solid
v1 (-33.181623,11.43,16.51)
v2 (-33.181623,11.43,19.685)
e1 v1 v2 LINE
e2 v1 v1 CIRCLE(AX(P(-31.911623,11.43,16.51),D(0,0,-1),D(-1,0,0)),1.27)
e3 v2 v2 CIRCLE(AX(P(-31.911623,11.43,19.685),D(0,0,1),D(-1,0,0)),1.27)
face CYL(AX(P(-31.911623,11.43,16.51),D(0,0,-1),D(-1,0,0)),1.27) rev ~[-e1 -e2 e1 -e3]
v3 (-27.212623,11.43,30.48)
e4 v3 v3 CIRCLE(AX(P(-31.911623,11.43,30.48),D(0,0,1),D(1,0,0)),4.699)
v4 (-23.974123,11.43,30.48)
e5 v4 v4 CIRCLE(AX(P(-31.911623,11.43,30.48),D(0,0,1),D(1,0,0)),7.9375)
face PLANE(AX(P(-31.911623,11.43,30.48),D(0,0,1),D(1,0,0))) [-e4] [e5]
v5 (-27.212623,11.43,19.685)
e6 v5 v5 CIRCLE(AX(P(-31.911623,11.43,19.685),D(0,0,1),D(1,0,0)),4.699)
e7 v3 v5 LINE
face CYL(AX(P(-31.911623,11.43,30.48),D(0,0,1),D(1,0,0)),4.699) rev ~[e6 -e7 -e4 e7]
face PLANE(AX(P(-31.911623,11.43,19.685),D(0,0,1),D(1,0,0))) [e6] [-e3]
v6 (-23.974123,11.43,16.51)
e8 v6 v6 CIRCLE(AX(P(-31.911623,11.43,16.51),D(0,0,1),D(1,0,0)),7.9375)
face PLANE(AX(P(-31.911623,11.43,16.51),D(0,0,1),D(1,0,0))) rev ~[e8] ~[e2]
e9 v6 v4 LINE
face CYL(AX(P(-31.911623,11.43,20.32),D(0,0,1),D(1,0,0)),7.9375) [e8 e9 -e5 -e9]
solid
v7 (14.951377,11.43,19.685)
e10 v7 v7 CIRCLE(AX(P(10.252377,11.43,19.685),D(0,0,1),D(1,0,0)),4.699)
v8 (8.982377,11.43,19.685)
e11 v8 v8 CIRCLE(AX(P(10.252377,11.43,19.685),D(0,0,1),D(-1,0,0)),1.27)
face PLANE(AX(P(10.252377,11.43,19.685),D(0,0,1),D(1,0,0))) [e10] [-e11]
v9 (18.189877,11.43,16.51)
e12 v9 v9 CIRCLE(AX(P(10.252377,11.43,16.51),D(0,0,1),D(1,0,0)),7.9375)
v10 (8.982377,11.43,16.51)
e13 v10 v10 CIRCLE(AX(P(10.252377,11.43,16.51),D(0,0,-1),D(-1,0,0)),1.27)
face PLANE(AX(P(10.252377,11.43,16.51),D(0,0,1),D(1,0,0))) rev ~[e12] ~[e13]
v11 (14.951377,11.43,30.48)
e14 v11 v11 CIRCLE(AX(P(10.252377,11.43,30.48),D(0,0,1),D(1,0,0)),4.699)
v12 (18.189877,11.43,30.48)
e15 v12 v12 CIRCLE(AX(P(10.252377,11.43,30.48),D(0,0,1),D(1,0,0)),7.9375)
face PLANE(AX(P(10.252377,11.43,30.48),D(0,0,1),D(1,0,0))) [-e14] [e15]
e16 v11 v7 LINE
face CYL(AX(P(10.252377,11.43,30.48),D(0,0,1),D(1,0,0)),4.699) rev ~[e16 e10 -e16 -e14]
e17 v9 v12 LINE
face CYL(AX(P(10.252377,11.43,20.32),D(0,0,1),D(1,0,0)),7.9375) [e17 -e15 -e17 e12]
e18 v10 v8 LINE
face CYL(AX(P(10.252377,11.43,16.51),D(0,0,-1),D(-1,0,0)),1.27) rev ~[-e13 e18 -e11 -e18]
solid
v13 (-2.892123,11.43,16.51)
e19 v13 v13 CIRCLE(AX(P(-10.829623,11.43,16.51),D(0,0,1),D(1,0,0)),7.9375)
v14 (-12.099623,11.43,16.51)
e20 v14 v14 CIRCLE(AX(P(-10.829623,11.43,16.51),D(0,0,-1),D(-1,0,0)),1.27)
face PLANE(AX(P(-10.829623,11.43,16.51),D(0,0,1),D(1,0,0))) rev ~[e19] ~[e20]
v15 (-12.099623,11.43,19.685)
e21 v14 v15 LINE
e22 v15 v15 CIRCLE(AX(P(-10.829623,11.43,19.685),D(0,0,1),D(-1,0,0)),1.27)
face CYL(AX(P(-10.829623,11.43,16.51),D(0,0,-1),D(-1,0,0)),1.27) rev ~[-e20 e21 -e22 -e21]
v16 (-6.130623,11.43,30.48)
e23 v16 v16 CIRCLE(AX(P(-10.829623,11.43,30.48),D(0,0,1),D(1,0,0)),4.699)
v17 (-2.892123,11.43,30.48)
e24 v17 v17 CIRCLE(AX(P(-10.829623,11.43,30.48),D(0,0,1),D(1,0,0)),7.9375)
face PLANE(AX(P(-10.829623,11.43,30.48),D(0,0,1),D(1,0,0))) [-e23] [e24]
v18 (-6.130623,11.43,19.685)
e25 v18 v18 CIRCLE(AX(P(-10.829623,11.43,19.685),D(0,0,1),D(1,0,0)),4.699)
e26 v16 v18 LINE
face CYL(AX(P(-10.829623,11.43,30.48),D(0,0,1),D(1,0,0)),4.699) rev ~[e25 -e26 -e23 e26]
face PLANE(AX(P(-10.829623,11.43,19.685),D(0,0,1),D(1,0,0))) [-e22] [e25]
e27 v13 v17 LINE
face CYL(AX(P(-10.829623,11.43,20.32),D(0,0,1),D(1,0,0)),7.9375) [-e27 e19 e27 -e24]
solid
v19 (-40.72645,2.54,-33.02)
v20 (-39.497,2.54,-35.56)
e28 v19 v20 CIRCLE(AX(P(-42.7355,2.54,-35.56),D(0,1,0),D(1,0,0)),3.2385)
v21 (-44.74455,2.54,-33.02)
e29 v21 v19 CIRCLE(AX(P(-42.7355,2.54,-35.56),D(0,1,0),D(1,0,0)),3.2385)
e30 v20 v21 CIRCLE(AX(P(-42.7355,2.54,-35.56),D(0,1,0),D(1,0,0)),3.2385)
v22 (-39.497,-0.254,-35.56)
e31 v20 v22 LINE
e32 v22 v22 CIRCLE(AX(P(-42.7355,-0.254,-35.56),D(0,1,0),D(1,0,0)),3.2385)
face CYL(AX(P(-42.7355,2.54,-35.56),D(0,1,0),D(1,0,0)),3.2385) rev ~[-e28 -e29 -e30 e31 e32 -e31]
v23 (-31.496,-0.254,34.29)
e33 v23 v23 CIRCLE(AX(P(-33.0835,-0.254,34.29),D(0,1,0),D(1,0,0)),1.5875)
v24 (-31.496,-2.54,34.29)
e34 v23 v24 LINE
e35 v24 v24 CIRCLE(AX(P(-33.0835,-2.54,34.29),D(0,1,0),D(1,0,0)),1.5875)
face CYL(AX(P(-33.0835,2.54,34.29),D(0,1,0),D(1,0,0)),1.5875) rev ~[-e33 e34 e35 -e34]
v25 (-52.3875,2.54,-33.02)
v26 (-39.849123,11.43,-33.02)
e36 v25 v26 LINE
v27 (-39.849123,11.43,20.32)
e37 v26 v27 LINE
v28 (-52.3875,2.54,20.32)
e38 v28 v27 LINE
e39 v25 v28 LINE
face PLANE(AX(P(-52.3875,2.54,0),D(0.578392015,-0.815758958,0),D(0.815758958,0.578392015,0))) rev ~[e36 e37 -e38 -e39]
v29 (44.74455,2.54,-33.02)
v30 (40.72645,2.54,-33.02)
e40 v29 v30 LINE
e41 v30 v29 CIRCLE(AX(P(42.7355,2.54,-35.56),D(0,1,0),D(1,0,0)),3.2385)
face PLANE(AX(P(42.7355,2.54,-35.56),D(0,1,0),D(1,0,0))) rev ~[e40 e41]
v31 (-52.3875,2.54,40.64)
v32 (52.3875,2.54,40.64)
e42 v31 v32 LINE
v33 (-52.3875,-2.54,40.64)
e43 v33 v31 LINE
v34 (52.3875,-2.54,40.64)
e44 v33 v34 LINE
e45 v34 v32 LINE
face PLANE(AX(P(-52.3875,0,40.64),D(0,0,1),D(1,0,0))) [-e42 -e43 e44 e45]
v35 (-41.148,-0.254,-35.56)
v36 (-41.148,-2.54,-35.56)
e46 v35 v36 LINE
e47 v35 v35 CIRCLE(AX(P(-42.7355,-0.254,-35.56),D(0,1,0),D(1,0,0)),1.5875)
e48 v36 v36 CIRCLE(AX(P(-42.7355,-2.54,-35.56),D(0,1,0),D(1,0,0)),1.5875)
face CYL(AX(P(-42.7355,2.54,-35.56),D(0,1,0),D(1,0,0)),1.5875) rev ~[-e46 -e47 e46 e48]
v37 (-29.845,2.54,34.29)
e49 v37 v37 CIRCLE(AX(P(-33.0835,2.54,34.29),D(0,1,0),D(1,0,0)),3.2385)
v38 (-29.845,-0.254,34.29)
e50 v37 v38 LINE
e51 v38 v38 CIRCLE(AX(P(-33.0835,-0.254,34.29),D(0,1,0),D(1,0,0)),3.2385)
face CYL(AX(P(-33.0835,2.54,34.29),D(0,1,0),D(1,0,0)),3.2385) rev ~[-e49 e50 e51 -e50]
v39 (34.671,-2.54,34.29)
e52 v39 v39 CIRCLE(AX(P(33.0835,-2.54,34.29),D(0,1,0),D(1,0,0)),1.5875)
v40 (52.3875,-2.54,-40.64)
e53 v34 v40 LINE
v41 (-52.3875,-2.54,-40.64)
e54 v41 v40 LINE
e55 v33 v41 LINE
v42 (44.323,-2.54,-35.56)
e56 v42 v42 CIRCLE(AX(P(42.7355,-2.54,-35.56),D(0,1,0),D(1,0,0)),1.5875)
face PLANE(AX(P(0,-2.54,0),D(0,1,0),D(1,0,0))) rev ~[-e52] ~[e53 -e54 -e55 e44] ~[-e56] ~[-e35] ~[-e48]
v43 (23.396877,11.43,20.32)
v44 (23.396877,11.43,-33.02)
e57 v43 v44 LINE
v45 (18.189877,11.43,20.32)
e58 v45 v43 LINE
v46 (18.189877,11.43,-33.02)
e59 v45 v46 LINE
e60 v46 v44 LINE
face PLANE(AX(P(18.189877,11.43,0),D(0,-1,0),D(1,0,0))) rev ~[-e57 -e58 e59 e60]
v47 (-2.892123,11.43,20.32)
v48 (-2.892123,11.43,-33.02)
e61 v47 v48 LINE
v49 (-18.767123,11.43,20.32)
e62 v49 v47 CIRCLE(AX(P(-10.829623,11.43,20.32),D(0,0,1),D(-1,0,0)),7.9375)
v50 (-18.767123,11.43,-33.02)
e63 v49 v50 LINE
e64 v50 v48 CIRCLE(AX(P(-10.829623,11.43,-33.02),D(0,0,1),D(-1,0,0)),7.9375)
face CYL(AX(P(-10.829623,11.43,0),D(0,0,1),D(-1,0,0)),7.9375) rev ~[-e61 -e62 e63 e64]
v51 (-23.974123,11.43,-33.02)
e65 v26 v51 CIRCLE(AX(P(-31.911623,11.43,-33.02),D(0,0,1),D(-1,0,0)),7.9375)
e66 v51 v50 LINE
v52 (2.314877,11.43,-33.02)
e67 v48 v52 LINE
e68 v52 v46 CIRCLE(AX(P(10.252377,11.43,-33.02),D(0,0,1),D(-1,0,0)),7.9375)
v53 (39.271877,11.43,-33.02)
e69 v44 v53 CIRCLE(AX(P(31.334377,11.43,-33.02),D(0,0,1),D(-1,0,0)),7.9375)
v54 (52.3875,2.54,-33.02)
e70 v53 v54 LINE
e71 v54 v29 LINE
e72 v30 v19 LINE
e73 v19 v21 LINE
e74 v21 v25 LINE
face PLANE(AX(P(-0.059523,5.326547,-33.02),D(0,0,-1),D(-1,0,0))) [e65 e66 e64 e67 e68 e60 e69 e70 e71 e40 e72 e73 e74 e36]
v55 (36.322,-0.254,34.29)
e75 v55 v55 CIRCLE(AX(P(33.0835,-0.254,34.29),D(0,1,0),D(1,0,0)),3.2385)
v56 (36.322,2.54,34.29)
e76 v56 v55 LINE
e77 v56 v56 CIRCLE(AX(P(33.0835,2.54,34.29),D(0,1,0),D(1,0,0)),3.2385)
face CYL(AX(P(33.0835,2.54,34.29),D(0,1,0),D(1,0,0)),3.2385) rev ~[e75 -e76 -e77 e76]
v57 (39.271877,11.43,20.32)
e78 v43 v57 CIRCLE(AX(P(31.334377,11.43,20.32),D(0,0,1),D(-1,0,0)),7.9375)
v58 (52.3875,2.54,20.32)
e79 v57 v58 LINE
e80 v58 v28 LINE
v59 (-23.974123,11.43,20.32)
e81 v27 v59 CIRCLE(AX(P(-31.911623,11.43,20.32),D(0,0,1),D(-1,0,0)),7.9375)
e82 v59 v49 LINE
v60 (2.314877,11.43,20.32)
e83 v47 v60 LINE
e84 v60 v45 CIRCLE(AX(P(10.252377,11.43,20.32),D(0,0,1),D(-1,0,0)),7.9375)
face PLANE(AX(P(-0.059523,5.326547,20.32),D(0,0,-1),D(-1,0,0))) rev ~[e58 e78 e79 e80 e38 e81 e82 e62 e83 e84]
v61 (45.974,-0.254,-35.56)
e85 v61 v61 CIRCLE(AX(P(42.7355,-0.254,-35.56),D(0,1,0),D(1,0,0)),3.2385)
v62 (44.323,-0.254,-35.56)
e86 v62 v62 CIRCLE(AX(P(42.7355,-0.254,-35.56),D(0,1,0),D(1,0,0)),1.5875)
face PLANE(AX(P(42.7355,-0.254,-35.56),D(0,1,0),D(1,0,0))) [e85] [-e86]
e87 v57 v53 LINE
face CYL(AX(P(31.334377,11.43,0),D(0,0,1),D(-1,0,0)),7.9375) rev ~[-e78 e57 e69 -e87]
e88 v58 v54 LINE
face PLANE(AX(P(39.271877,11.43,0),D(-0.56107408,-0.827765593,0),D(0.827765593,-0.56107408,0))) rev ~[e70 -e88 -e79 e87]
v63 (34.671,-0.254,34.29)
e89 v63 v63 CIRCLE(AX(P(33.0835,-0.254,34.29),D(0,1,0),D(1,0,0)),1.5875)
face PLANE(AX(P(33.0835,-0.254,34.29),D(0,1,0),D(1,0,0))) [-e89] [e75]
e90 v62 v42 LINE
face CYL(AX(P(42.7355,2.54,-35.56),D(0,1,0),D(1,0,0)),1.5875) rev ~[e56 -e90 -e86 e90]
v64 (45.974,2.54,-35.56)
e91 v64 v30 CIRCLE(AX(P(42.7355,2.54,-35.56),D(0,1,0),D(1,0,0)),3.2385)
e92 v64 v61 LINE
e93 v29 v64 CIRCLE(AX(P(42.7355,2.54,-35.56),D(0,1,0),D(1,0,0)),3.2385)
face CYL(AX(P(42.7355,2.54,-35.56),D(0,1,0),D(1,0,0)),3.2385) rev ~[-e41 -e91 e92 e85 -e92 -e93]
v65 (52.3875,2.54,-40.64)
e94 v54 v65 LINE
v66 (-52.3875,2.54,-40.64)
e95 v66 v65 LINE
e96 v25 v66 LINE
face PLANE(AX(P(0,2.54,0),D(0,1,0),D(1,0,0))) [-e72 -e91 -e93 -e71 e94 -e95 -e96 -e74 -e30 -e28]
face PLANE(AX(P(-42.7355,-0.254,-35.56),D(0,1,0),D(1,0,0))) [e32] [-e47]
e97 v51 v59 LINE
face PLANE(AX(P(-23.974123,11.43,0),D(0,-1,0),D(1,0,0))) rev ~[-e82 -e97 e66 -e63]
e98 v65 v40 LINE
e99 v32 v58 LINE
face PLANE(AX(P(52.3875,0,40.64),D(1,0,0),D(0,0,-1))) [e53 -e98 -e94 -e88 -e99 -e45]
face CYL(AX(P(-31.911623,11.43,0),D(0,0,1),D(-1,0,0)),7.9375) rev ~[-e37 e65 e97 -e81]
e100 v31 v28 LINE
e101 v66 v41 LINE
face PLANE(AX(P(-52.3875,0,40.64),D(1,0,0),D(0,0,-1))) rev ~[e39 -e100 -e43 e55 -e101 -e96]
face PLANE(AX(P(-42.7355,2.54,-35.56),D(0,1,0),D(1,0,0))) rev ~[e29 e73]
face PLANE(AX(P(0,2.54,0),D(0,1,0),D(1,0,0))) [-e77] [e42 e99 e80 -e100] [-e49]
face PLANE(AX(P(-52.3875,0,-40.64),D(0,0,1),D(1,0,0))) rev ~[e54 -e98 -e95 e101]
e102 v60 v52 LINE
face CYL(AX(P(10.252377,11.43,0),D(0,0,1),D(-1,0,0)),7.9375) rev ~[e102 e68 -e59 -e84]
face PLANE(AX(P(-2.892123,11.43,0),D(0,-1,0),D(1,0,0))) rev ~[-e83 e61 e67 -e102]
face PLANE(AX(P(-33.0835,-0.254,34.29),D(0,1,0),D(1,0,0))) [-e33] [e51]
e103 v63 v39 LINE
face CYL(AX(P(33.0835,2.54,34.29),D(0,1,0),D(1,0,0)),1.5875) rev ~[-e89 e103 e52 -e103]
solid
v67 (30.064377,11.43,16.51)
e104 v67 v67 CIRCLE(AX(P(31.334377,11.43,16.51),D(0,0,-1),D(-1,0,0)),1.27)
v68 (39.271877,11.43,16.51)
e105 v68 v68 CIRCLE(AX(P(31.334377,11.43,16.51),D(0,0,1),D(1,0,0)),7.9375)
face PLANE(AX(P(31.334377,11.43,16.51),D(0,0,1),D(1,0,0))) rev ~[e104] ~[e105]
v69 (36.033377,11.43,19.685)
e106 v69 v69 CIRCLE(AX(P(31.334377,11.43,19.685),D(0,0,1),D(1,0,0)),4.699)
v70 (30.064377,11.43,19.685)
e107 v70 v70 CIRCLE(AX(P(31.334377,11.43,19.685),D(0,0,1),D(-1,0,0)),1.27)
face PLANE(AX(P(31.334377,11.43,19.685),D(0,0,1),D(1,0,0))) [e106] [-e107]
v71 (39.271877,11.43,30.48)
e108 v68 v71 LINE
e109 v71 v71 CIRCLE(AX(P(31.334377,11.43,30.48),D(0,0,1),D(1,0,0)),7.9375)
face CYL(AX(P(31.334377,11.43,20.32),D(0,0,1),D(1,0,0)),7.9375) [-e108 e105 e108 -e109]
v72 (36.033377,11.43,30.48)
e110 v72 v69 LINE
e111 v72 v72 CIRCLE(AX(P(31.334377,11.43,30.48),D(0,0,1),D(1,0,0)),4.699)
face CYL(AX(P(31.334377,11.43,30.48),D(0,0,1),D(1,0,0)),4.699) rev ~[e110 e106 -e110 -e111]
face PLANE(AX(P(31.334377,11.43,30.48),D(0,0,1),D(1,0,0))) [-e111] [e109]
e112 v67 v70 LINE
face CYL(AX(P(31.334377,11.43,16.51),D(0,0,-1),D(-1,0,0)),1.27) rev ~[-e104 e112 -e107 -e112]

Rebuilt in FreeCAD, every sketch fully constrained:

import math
import FreeCAD as App
import Part
import Sketcher
Q = App.Units.Quantity

doc = App.newDocument("Part")
body = doc.addObject("PartDesign::Body", "Body")

sketch1 = body.newObject("Sketcher::SketchObject", "Sketch")
sketch1.AttachmentSupport = (doc.getObject("XZ_Plane"), [""])
sketch1.MapMode = "FlatFace"
sketch1.addGeometry(Part.LineSegment(App.Vector(-52, -41, 0), App.Vector(-52, 41, 0)), False)
sketch1.addGeometry(Part.LineSegment(App.Vector(-52, 41, 0), App.Vector(52, 41, 0)), False)
sketch1.addGeometry(Part.LineSegment(App.Vector(52, 41, 0), App.Vector(52, -41, 0)), False)
sketch1.addGeometry(Part.LineSegment(App.Vector(52, -41, 0), App.Vector(-52, -41, 0)), False)
sketch1.addConstraint(Sketcher.Constraint("Coincident", 0, 2, 1, 1))
sketch1.addConstraint(Sketcher.Constraint("Coincident", 1, 2, 2, 1))
sketch1.addConstraint(Sketcher.Constraint("Coincident", 2, 2, 3, 1))
sketch1.addConstraint(Sketcher.Constraint("Coincident", 3, 2, 0, 1))
sketch1.addConstraint(Sketcher.Constraint("Vertical", 0))
sketch1.addConstraint(Sketcher.Constraint("Horizontal", 1))
sketch1.addConstraint(Sketcher.Constraint("Vertical", 2))
sketch1.addConstraint(Sketcher.Constraint("Horizontal", 3))
sketch1.addConstraint(Sketcher.Constraint("Symmetric", 0, 2, 2, 2, -1, 1))
sketch1.addConstraint(Sketcher.Constraint("DistanceY", 0, 1, 0, 2, Q("3.2 in")))
sketch1.addConstraint(Sketcher.Constraint("DistanceX", 1, 1, 1, 2, Q("4.125 in")))
pad1 = body.newObject("PartDesign::Pad", "Pad")
pad1.Profile = sketch1
pad1.Length = Q("0.2 in")
pad1.Midplane = True

sketch2 = body.newObject("Sketcher::SketchObject", "Sketch001")
sketch2.AttachmentSupport = (doc.getObject("XZ_Plane"), [""])
sketch2.MapMode = "FlatFace"
sketch2.AttachmentOffset = App.Placement(App.Vector(0, 0, -0.1 * 25.4), App.Rotation())
sketch2.addGeometry(Part.Circle(App.Vector(-33.1, 34.3, 0), App.Vector(0, 0, 1), 1.6), False)
sketch2.addConstraint(Sketcher.Constraint("Diameter", 0, Q("0.125 in")))
sketch2.addConstraint(Sketcher.Constraint("DistanceY", -1, 1, 0, 3, Q("1.35 in")))
sketch2.addConstraint(Sketcher.Constraint("DistanceX", 0, 3, -1, 1, Q("1.3025 in")))
pocket1 = body.newObject("PartDesign::Pocket", "Pocket")
pocket1.Profile = sketch2
pocket1.Type = "UpToFirst"
pocket1.Reversed = True

sketch3 = body.newObject("Sketcher::SketchObject", "Sketch002")
sketch3.AttachmentSupport = (doc.getObject("XZ_Plane"), [""])
sketch3.MapMode = "FlatFace"
sketch3.AttachmentOffset = App.Placement(App.Vector(0, 0, -0.1 * 25.4), App.Rotation())
sketch3.addGeometry(Part.Circle(App.Vector(33.1, 34.3, 0), App.Vector(0, 0, 1), 1.6), False)
sketch3.addConstraint(Sketcher.Constraint("Diameter", 0, Q("0.125 in")))
sketch3.addConstraint(Sketcher.Constraint("DistanceY", -1, 1, 0, 3, Q("1.35 in")))
sketch3.addConstraint(Sketcher.Constraint("DistanceX", -1, 1, 0, 3, Q("1.3025 in")))
pocket2 = body.newObject("PartDesign::Pocket", "Pocket001")
pocket2.Profile = sketch3
pocket2.Type = "UpToFirst"
pocket2.Reversed = True

sketch4 = body.newObject("Sketcher::SketchObject", "Sketch003")
sketch4.AttachmentSupport = (doc.getObject("XZ_Plane"), [""])
sketch4.MapMode = "FlatFace"
sketch4.AttachmentOffset = App.Placement(App.Vector(0, 0, -0.1 * 25.4), App.Rotation())
sketch4.addGeometry(Part.Circle(App.Vector(42.7, -35.6, 0), App.Vector(0, 0, 1), 1.6), False)
sketch4.addConstraint(Sketcher.Constraint("Diameter", 0, Q("0.125 in")))
sketch4.addConstraint(Sketcher.Constraint("DistanceY", 0, 3, -1, 1, Q("1.4 in")))
sketch4.addConstraint(Sketcher.Constraint("DistanceX", -1, 1, 0, 3, Q("1.6825 in")))
pocket3 = body.newObject("PartDesign::Pocket", "Pocket002")
pocket3.Profile = sketch4
pocket3.Type = "UpToFirst"
pocket3.Reversed = True

sketch5 = body.newObject("Sketcher::SketchObject", "Sketch004")
sketch5.AttachmentSupport = (doc.getObject("XZ_Plane"), [""])
sketch5.MapMode = "FlatFace"
sketch5.AttachmentOffset = App.Placement(App.Vector(0, 0, -0.1 * 25.4), App.Rotation())
sketch5.addGeometry(Part.Circle(App.Vector(-42.7, -35.6, 0), App.Vector(0, 0, 1), 1.6), False)
sketch5.addConstraint(Sketcher.Constraint("Diameter", 0, Q("0.125 in")))
sketch5.addConstraint(Sketcher.Constraint("DistanceY", 0, 3, -1, 1, Q("1.4 in")))
sketch5.addConstraint(Sketcher.Constraint("DistanceX", 0, 3, -1, 1, Q("1.6825 in")))
pocket4 = body.newObject("PartDesign::Pocket", "Pocket003")
pocket4.Profile = sketch5
pocket4.Type = "UpToFirst"
pocket4.Reversed = True

sketch6 = body.newObject("Sketcher::SketchObject", "Sketch005")
sketch6.AttachmentSupport = (doc.getObject("XY_Plane"), [""])
sketch6.MapMode = "FlatFace"
sketch6.addGeometry(Part.LineSegment(App.Vector(-19, 11, 0), App.Vector(-24, 11, 0)), False)
sketch6.addGeometry(Part.ArcOfCircle(Part.Circle(App.Vector(-32, 11, 0), App.Vector(0, 0, 1), 8), math.radians(180), math.radians(360)), False)
sketch6.addGeometry(Part.LineSegment(App.Vector(-40, 11, 0), App.Vector(-52, 3, 0)), False)
sketch6.addGeometry(Part.LineSegment(App.Vector(-52, 3, 0), App.Vector(52, 3, 0)), False)
sketch6.addGeometry(Part.LineSegment(App.Vector(52, 3, 0), App.Vector(39, 11, 0)), False)
sketch6.addGeometry(Part.ArcOfCircle(Part.Circle(App.Vector(31, 11, 0), App.Vector(0, 0, 1), 8), math.radians(180), math.radians(360)), False)
sketch6.addGeometry(Part.LineSegment(App.Vector(23, 11, 0), App.Vector(18, 11, 0)), False)
sketch6.addGeometry(Part.ArcOfCircle(Part.Circle(App.Vector(10, 11, 0), App.Vector(0, 0, 1), 8), math.radians(180), math.radians(360)), False)
sketch6.addGeometry(Part.LineSegment(App.Vector(2, 11, 0), App.Vector(-3, 11, 0)), False)
sketch6.addGeometry(Part.ArcOfCircle(Part.Circle(App.Vector(-11, 11, 0), App.Vector(0, 0, 1), 8), math.radians(180), math.radians(360)), False)
sketch6.addConstraint(Sketcher.Constraint("Coincident", 0, 2, 1, 2))
sketch6.addConstraint(Sketcher.Constraint("Coincident", 1, 1, 2, 1))
sketch6.addConstraint(Sketcher.Constraint("Coincident", 2, 2, 3, 1))
sketch6.addConstraint(Sketcher.Constraint("Coincident", 3, 2, 4, 1))
sketch6.addConstraint(Sketcher.Constraint("Coincident", 4, 2, 5, 2))
sketch6.addConstraint(Sketcher.Constraint("Coincident", 5, 1, 6, 1))
sketch6.addConstraint(Sketcher.Constraint("Coincident", 6, 2, 7, 2))
sketch6.addConstraint(Sketcher.Constraint("Coincident", 7, 1, 8, 1))
sketch6.addConstraint(Sketcher.Constraint("Coincident", 8, 2, 9, 2))
sketch6.addConstraint(Sketcher.Constraint("Coincident", 9, 1, 0, 1))
sketch6.addConstraint(Sketcher.Constraint("Horizontal", 0))
sketch6.addConstraint(Sketcher.Constraint("Horizontal", 3))
sketch6.addConstraint(Sketcher.Constraint("Horizontal", 6))
sketch6.addConstraint(Sketcher.Constraint("Horizontal", 8))
sketch6.addConstraint(Sketcher.Constraint("Equal", 1, 5))
sketch6.addConstraint(Sketcher.Constraint("Equal", 5, 7))
sketch6.addConstraint(Sketcher.Constraint("Equal", 7, 9))
sketch6.addConstraint(Sketcher.Constraint("Horizontal", 1, 3, 5, 3))
sketch6.addConstraint(Sketcher.Constraint("Horizontal", 5, 3, 7, 3))
sketch6.addConstraint(Sketcher.Constraint("Horizontal", 7, 3, 9, 3))
sketch6.addConstraint(Sketcher.Constraint("Horizontal", 9, 3, 0, 2))
sketch6.addConstraint(Sketcher.Constraint("Horizontal", 0, 2, 1, 1))
sketch6.addConstraint(Sketcher.Constraint("Horizontal", 1, 1, 4, 2))
sketch6.addConstraint(Sketcher.Constraint("Horizontal", 4, 2, 5, 1))
sketch6.addConstraint(Sketcher.Constraint("Horizontal", 6, 2, 7, 1))
sketch6.addConstraint(Sketcher.Constraint("Equal", 0, 6))
sketch6.addConstraint(Sketcher.Constraint("Equal", 6, 8))
sketch6.addConstraint(Sketcher.Constraint("Radius", 1, Q("0.3125 in")))
sketch6.addConstraint(Sketcher.Constraint("DistanceY", -1, 1, 2, 2, Q("0.1 in")))
sketch6.addConstraint(Sketcher.Constraint("DistanceX", 0, 2, 0, 1, Q("0.205 in")))
sketch6.addConstraint(Sketcher.Constraint("DistanceX", 3, 1, 3, 2, Q("4.125 in")))
sketch6.addConstraint(Sketcher.Constraint("DistanceY", -1, 1, 1, 3, Q("0.45 in")))
sketch6.addConstraint(Sketcher.Constraint("DistanceX", 2, 2, -1, 1, Q("2.0625 in")))
sketch6.addConstraint(Sketcher.Constraint("Distance", 2, Q("15.370198 mm")))
pad2 = body.newObject("PartDesign::Pad", "Pad001")
pad2.Profile = sketch6
pad2.Type = "TwoLengths"
pad2.Length = Q("0.8 in")
pad2.Length2 = Q("1.3 in")

sketch7 = body.newObject("Sketcher::SketchObject", "Sketch006")
sketch7.AttachmentSupport = (doc.getObject("XZ_Plane"), [""])
sketch7.MapMode = "FlatFace"
sketch7.AttachmentOffset = App.Placement(App.Vector(0, 0, -0.1 * 25.4), App.Rotation())
sketch7.addGeometry(Part.Circle(App.Vector(-33.1, 34.3, 0), App.Vector(0, 0, 1), 3.2), False)
sketch7.addGeometry(Part.Circle(App.Vector(33.1, 34.3, 0), App.Vector(0, 0, 1), 3.2), False)
sketch7.addGeometry(Part.Circle(App.Vector(42.7, -35.6, 0), App.Vector(0, 0, 1), 3.2), False)
sketch7.addGeometry(Part.Circle(App.Vector(-42.7, -35.6, 0), App.Vector(0, 0, 1), 3.2), False)
sketch7.addConstraint(Sketcher.Constraint("Equal", 0, 1))
sketch7.addConstraint(Sketcher.Constraint("Equal", 1, 2))
sketch7.addConstraint(Sketcher.Constraint("Equal", 2, 3))
sketch7.addConstraint(Sketcher.Constraint("Symmetric", 0, 3, 1, 3, -2))
sketch7.addConstraint(Sketcher.Constraint("Symmetric", 2, 3, 3, 3, -2))
sketch7.addConstraint(Sketcher.Constraint("Diameter", 0, Q("0.255 in")))
sketch7.addConstraint(Sketcher.Constraint("DistanceY", 2, 3, -1, 1, Q("1.4 in")))
sketch7.addConstraint(Sketcher.Constraint("DistanceY", -1, 1, 0, 3, Q("1.35 in")))
sketch7.addConstraint(Sketcher.Constraint("DistanceX", 1, 3, 2, 3, Q("0.38 in")))
sketch7.addConstraint(Sketcher.Constraint("DistanceX", 0, 3, 1, 3, Q("2.605 in")))
pocket5 = body.newObject("PartDesign::Pocket", "Pocket004")
pocket5.Profile = sketch7
pocket5.Length = Q("0.11 in")
pocket5.Reversed = True
body2 = doc.addObject("PartDesign::Body", "Body001")

sketch8 = body2.newObject("Sketcher::SketchObject", "Sketch007")
sketch8.AttachmentSupport = (doc.getObject("XY_Plane001"), [""])
sketch8.MapMode = "FlatFace"
sketch8.AttachmentOffset = App.Placement(App.Vector(0, 0, 0.8 * 25.4), App.Rotation())
sketch8.addGeometry(Part.Circle(App.Vector(-32, 11, 0), App.Vector(0, 0, 1), 8), False)
sketch8.addConstraint(Sketcher.Constraint("Diameter", 0, Q("0.625 in")))
sketch8.addConstraint(Sketcher.Constraint("DistanceY", -1, 1, 0, 3, Q("0.45 in")))
sketch8.addConstraint(Sketcher.Constraint("DistanceX", 0, 3, -1, 1, Q("31.911623 mm")))
pad3 = body2.newObject("PartDesign::Pad", "Pad002")
pad3.Profile = sketch8
pad3.Type = "TwoLengths"
pad3.Length = Q("0.4 in")
pad3.Length2 = Q("0.15 in")
body3 = doc.addObject("PartDesign::Body", "Body002")

sketch9 = body3.newObject("Sketcher::SketchObject", "Sketch008")
sketch9.AttachmentSupport = (doc.getObject("XY_Plane002"), [""])
sketch9.MapMode = "FlatFace"
sketch9.AttachmentOffset = App.Placement(App.Vector(0, 0, 0.8 * 25.4), App.Rotation())
sketch9.addGeometry(Part.Circle(App.Vector(-11, 11, 0), App.Vector(0, 0, 1), 8), False)
sketch9.addConstraint(Sketcher.Constraint("Diameter", 0, Q("0.625 in")))
sketch9.addConstraint(Sketcher.Constraint("DistanceY", -1, 1, 0, 3, Q("0.45 in")))
sketch9.addConstraint(Sketcher.Constraint("DistanceX", 0, 3, -1, 1, Q("10.829623 mm")))
pad4 = body3.newObject("PartDesign::Pad", "Pad003")
pad4.Profile = sketch9
pad4.Type = "TwoLengths"
pad4.Length = Q("0.4 in")
pad4.Length2 = Q("0.15 in")
body4 = doc.addObject("PartDesign::Body", "Body003")

sketch10 = body4.newObject("Sketcher::SketchObject", "Sketch009")
sketch10.AttachmentSupport = (doc.getObject("XY_Plane003"), [""])
sketch10.MapMode = "FlatFace"
sketch10.AttachmentOffset = App.Placement(App.Vector(0, 0, 0.8 * 25.4), App.Rotation())
sketch10.addGeometry(Part.Circle(App.Vector(10, 11, 0), App.Vector(0, 0, 1), 8), False)
sketch10.addConstraint(Sketcher.Constraint("Diameter", 0, Q("0.625 in")))
sketch10.addConstraint(Sketcher.Constraint("DistanceY", -1, 1, 0, 3, Q("0.45 in")))
sketch10.addConstraint(Sketcher.Constraint("DistanceX", -1, 1, 0, 3, Q("10.252377 mm")))
pad5 = body4.newObject("PartDesign::Pad", "Pad004")
pad5.Profile = sketch10
pad5.Type = "TwoLengths"
pad5.Length = Q("0.4 in")
pad5.Length2 = Q("0.15 in")
body5 = doc.addObject("PartDesign::Body", "Body004")

sketch11 = body5.newObject("Sketcher::SketchObject", "Sketch010")
sketch11.AttachmentSupport = (doc.getObject("XY_Plane004"), [""])
sketch11.MapMode = "FlatFace"
sketch11.AttachmentOffset = App.Placement(App.Vector(0, 0, 0.8 * 25.4), App.Rotation())
sketch11.addGeometry(Part.Circle(App.Vector(31, 11, 0), App.Vector(0, 0, 1), 8), False)
sketch11.addConstraint(Sketcher.Constraint("Diameter", 0, Q("0.625 in")))
sketch11.addConstraint(Sketcher.Constraint("DistanceY", -1, 1, 0, 3, Q("0.45 in")))
sketch11.addConstraint(Sketcher.Constraint("DistanceX", -1, 1, 0, 3, Q("31.334377 mm")))
pad6 = body5.newObject("PartDesign::Pad", "Pad005")
pad6.Profile = sketch11
pad6.Type = "TwoLengths"
pad6.Length = Q("0.4 in")
pad6.Length2 = Q("0.15 in")
body6 = doc.addObject("PartDesign::Body", "Body005")
body6.AllowCompound = True

sketch12 = body6.newObject("Sketcher::SketchObject", "Sketch011")
sketch12.AttachmentSupport = (doc.getObject("XY_Plane005"), [""])
sketch12.MapMode = "FlatFace"
sketch12.AttachmentOffset = App.Placement(App.Vector(0, 0, 0.65 * 25.4), App.Rotation())
sketch12.addGeometry(Part.Circle(App.Vector(31.3, 11.4, 0), App.Vector(0, 0, 1), 1.3), False)
sketch12.addGeometry(Part.Circle(App.Vector(10.3, 11.4, 0), App.Vector(0, 0, 1), 1.3), False)
sketch12.addGeometry(Part.Circle(App.Vector(-10.8, 11.4, 0), App.Vector(0, 0, 1), 1.3), False)
sketch12.addGeometry(Part.Circle(App.Vector(-31.9, 11.4, 0), App.Vector(0, 0, 1), 1.3), False)
sketch12.addConstraint(Sketcher.Constraint("Equal", 0, 1))
sketch12.addConstraint(Sketcher.Constraint("Equal", 1, 2))
sketch12.addConstraint(Sketcher.Constraint("Equal", 2, 3))
sketch12.addConstraint(Sketcher.Constraint("Horizontal", 0, 3, 1, 3))
sketch12.addConstraint(Sketcher.Constraint("Horizontal", 1, 3, 2, 3))
sketch12.addConstraint(Sketcher.Constraint("Horizontal", 2, 3, 3, 3))
sketch12.addConstraint(Sketcher.Constraint("Diameter", 0, Q("0.1 in")))
sketch12.addConstraint(Sketcher.Constraint("DistanceY", -1, 1, 0, 3, Q("0.45 in")))
sketch12.addConstraint(Sketcher.Constraint("DistanceX", 1, 3, 0, 3, Q("0.83 in")))
sketch12.addConstraint(Sketcher.Constraint("DistanceX", 2, 3, 1, 3, Q("0.83 in")))
sketch12.addConstraint(Sketcher.Constraint("DistanceX", 3, 3, 2, 3, Q("0.83 in")))
sketch12.addConstraint(Sketcher.Constraint("DistanceX", -1, 1, 0, 3, Q("31.334377 mm")))
pad7 = body6.newObject("PartDesign::Pad", "Pad006")
pad7.Profile = sketch12
pad7.Length = Q("0.55 in")
doc.recompute()

body7 = doc.addObject("PartDesign::Body", "Body006")
body7.BaseFeature = body6
boolean = body2.newObject("PartDesign::Boolean", "Boolean")
boolean.Type = "Cut"
boolean.addObjects([body7])
doc.recompute()

body8 = doc.addObject("PartDesign::Body", "Body007")
body8.BaseFeature = body6
boolean2 = body3.newObject("PartDesign::Boolean", "Boolean001")
boolean2.Type = "Cut"
boolean2.addObjects([body8])
doc.recompute()

body9 = doc.addObject("PartDesign::Body", "Body008")
body9.BaseFeature = body6
boolean3 = body4.newObject("PartDesign::Boolean", "Boolean002")
boolean3.Type = "Cut"
boolean3.addObjects([body9])
doc.recompute()

boolean4 = body5.newObject("PartDesign::Boolean", "Boolean003")
boolean4.Type = "Cut"
boolean4.addObjects([body6])
body10 = doc.addObject("PartDesign::Body", "Body009")
body10.AllowCompound = True

sketch13 = body10.newObject("Sketcher::SketchObject", "Sketch012")
sketch13.AttachmentSupport = (doc.getObject("XY_Plane009"), [""])
sketch13.MapMode = "FlatFace"
sketch13.AttachmentOffset = App.Placement(App.Vector(0, 0, 1.2 * 25.4), App.Rotation())
sketch13.addGeometry(Part.Circle(App.Vector(-31.9, 11.4, 0), App.Vector(0, 0, 1), 4.7), False)
sketch13.addGeometry(Part.Circle(App.Vector(-31.9, 11.4, 0), App.Vector(0, 0, 1), 1.3), False)
sketch13.addGeometry(Part.Circle(App.Vector(-10.8, 11.4, 0), App.Vector(0, 0, 1), 4.7), False)
sketch13.addGeometry(Part.Circle(App.Vector(-10.8, 11.4, 0), App.Vector(0, 0, 1), 1.3), False)
sketch13.addGeometry(Part.Circle(App.Vector(10.3, 11.4, 0), App.Vector(0, 0, 1), 4.7), False)
sketch13.addGeometry(Part.Circle(App.Vector(10.3, 11.4, 0), App.Vector(0, 0, 1), 1.3), False)
sketch13.addGeometry(Part.Circle(App.Vector(31.3, 11.4, 0), App.Vector(0, 0, 1), 4.7), False)
sketch13.addGeometry(Part.Circle(App.Vector(31.3, 11.4, 0), App.Vector(0, 0, 1), 1.3), False)
sketch13.addConstraint(Sketcher.Constraint("Coincident", 1, 3, 0, 3))
sketch13.addConstraint(Sketcher.Constraint("Coincident", 3, 3, 2, 3))
sketch13.addConstraint(Sketcher.Constraint("Coincident", 5, 3, 4, 3))
sketch13.addConstraint(Sketcher.Constraint("Coincident", 7, 3, 6, 3))
sketch13.addConstraint(Sketcher.Constraint("Equal", 0, 2))
sketch13.addConstraint(Sketcher.Constraint("Equal", 1, 3))
sketch13.addConstraint(Sketcher.Constraint("Equal", 2, 4))
sketch13.addConstraint(Sketcher.Constraint("Equal", 3, 5))
sketch13.addConstraint(Sketcher.Constraint("Equal", 4, 6))
sketch13.addConstraint(Sketcher.Constraint("Equal", 5, 7))
sketch13.addConstraint(Sketcher.Constraint("Horizontal", 1, 3, 2, 3))
sketch13.addConstraint(Sketcher.Constraint("Horizontal", 3, 3, 4, 3))
sketch13.addConstraint(Sketcher.Constraint("Horizontal", 5, 3, 6, 3))
sketch13.addConstraint(Sketcher.Constraint("Diameter", 1, Q("0.1 in")))
sketch13.addConstraint(Sketcher.Constraint("Diameter", 0, Q("0.37 in")))
sketch13.addConstraint(Sketcher.Constraint("DistanceY", -1, 1, 0, 3, Q("0.45 in")))
sketch13.addConstraint(Sketcher.Constraint("DistanceX", 0, 3, 2, 3, Q("0.83 in")))
sketch13.addConstraint(Sketcher.Constraint("DistanceX", 2, 3, 4, 3, Q("0.83 in")))
sketch13.addConstraint(Sketcher.Constraint("DistanceX", 4, 3, 6, 3, Q("0.83 in")))
sketch13.addConstraint(Sketcher.Constraint("DistanceX", 0, 3, -1, 1, Q("31.911623 mm")))
pad8 = body10.newObject("PartDesign::Pad", "Pad007")
pad8.Profile = sketch13
pad8.Length = Q("0.425 in")
pad8.Reversed = True
doc.recompute()

body11 = doc.addObject("PartDesign::Body", "Body010")
body11.BaseFeature = body10
boolean5 = body2.newObject("PartDesign::Boolean", "Boolean004")
boolean5.Type = "Cut"
boolean5.addObjects([body11])
doc.recompute()

body12 = doc.addObject("PartDesign::Body", "Body011")
body12.BaseFeature = body10
boolean6 = body3.newObject("PartDesign::Boolean", "Boolean005")
boolean6.Type = "Cut"
boolean6.addObjects([body12])
doc.recompute()

body13 = doc.addObject("PartDesign::Body", "Body012")
body13.BaseFeature = body10
boolean7 = body4.newObject("PartDesign::Boolean", "Boolean006")
boolean7.Type = "Cut"
boolean7.addObjects([body13])
doc.recompute()

boolean8 = body5.newObject("PartDesign::Boolean", "Boolean007")
boolean8.Type = "Cut"
boolean8.addObjects([body10])

doc.recompute()
